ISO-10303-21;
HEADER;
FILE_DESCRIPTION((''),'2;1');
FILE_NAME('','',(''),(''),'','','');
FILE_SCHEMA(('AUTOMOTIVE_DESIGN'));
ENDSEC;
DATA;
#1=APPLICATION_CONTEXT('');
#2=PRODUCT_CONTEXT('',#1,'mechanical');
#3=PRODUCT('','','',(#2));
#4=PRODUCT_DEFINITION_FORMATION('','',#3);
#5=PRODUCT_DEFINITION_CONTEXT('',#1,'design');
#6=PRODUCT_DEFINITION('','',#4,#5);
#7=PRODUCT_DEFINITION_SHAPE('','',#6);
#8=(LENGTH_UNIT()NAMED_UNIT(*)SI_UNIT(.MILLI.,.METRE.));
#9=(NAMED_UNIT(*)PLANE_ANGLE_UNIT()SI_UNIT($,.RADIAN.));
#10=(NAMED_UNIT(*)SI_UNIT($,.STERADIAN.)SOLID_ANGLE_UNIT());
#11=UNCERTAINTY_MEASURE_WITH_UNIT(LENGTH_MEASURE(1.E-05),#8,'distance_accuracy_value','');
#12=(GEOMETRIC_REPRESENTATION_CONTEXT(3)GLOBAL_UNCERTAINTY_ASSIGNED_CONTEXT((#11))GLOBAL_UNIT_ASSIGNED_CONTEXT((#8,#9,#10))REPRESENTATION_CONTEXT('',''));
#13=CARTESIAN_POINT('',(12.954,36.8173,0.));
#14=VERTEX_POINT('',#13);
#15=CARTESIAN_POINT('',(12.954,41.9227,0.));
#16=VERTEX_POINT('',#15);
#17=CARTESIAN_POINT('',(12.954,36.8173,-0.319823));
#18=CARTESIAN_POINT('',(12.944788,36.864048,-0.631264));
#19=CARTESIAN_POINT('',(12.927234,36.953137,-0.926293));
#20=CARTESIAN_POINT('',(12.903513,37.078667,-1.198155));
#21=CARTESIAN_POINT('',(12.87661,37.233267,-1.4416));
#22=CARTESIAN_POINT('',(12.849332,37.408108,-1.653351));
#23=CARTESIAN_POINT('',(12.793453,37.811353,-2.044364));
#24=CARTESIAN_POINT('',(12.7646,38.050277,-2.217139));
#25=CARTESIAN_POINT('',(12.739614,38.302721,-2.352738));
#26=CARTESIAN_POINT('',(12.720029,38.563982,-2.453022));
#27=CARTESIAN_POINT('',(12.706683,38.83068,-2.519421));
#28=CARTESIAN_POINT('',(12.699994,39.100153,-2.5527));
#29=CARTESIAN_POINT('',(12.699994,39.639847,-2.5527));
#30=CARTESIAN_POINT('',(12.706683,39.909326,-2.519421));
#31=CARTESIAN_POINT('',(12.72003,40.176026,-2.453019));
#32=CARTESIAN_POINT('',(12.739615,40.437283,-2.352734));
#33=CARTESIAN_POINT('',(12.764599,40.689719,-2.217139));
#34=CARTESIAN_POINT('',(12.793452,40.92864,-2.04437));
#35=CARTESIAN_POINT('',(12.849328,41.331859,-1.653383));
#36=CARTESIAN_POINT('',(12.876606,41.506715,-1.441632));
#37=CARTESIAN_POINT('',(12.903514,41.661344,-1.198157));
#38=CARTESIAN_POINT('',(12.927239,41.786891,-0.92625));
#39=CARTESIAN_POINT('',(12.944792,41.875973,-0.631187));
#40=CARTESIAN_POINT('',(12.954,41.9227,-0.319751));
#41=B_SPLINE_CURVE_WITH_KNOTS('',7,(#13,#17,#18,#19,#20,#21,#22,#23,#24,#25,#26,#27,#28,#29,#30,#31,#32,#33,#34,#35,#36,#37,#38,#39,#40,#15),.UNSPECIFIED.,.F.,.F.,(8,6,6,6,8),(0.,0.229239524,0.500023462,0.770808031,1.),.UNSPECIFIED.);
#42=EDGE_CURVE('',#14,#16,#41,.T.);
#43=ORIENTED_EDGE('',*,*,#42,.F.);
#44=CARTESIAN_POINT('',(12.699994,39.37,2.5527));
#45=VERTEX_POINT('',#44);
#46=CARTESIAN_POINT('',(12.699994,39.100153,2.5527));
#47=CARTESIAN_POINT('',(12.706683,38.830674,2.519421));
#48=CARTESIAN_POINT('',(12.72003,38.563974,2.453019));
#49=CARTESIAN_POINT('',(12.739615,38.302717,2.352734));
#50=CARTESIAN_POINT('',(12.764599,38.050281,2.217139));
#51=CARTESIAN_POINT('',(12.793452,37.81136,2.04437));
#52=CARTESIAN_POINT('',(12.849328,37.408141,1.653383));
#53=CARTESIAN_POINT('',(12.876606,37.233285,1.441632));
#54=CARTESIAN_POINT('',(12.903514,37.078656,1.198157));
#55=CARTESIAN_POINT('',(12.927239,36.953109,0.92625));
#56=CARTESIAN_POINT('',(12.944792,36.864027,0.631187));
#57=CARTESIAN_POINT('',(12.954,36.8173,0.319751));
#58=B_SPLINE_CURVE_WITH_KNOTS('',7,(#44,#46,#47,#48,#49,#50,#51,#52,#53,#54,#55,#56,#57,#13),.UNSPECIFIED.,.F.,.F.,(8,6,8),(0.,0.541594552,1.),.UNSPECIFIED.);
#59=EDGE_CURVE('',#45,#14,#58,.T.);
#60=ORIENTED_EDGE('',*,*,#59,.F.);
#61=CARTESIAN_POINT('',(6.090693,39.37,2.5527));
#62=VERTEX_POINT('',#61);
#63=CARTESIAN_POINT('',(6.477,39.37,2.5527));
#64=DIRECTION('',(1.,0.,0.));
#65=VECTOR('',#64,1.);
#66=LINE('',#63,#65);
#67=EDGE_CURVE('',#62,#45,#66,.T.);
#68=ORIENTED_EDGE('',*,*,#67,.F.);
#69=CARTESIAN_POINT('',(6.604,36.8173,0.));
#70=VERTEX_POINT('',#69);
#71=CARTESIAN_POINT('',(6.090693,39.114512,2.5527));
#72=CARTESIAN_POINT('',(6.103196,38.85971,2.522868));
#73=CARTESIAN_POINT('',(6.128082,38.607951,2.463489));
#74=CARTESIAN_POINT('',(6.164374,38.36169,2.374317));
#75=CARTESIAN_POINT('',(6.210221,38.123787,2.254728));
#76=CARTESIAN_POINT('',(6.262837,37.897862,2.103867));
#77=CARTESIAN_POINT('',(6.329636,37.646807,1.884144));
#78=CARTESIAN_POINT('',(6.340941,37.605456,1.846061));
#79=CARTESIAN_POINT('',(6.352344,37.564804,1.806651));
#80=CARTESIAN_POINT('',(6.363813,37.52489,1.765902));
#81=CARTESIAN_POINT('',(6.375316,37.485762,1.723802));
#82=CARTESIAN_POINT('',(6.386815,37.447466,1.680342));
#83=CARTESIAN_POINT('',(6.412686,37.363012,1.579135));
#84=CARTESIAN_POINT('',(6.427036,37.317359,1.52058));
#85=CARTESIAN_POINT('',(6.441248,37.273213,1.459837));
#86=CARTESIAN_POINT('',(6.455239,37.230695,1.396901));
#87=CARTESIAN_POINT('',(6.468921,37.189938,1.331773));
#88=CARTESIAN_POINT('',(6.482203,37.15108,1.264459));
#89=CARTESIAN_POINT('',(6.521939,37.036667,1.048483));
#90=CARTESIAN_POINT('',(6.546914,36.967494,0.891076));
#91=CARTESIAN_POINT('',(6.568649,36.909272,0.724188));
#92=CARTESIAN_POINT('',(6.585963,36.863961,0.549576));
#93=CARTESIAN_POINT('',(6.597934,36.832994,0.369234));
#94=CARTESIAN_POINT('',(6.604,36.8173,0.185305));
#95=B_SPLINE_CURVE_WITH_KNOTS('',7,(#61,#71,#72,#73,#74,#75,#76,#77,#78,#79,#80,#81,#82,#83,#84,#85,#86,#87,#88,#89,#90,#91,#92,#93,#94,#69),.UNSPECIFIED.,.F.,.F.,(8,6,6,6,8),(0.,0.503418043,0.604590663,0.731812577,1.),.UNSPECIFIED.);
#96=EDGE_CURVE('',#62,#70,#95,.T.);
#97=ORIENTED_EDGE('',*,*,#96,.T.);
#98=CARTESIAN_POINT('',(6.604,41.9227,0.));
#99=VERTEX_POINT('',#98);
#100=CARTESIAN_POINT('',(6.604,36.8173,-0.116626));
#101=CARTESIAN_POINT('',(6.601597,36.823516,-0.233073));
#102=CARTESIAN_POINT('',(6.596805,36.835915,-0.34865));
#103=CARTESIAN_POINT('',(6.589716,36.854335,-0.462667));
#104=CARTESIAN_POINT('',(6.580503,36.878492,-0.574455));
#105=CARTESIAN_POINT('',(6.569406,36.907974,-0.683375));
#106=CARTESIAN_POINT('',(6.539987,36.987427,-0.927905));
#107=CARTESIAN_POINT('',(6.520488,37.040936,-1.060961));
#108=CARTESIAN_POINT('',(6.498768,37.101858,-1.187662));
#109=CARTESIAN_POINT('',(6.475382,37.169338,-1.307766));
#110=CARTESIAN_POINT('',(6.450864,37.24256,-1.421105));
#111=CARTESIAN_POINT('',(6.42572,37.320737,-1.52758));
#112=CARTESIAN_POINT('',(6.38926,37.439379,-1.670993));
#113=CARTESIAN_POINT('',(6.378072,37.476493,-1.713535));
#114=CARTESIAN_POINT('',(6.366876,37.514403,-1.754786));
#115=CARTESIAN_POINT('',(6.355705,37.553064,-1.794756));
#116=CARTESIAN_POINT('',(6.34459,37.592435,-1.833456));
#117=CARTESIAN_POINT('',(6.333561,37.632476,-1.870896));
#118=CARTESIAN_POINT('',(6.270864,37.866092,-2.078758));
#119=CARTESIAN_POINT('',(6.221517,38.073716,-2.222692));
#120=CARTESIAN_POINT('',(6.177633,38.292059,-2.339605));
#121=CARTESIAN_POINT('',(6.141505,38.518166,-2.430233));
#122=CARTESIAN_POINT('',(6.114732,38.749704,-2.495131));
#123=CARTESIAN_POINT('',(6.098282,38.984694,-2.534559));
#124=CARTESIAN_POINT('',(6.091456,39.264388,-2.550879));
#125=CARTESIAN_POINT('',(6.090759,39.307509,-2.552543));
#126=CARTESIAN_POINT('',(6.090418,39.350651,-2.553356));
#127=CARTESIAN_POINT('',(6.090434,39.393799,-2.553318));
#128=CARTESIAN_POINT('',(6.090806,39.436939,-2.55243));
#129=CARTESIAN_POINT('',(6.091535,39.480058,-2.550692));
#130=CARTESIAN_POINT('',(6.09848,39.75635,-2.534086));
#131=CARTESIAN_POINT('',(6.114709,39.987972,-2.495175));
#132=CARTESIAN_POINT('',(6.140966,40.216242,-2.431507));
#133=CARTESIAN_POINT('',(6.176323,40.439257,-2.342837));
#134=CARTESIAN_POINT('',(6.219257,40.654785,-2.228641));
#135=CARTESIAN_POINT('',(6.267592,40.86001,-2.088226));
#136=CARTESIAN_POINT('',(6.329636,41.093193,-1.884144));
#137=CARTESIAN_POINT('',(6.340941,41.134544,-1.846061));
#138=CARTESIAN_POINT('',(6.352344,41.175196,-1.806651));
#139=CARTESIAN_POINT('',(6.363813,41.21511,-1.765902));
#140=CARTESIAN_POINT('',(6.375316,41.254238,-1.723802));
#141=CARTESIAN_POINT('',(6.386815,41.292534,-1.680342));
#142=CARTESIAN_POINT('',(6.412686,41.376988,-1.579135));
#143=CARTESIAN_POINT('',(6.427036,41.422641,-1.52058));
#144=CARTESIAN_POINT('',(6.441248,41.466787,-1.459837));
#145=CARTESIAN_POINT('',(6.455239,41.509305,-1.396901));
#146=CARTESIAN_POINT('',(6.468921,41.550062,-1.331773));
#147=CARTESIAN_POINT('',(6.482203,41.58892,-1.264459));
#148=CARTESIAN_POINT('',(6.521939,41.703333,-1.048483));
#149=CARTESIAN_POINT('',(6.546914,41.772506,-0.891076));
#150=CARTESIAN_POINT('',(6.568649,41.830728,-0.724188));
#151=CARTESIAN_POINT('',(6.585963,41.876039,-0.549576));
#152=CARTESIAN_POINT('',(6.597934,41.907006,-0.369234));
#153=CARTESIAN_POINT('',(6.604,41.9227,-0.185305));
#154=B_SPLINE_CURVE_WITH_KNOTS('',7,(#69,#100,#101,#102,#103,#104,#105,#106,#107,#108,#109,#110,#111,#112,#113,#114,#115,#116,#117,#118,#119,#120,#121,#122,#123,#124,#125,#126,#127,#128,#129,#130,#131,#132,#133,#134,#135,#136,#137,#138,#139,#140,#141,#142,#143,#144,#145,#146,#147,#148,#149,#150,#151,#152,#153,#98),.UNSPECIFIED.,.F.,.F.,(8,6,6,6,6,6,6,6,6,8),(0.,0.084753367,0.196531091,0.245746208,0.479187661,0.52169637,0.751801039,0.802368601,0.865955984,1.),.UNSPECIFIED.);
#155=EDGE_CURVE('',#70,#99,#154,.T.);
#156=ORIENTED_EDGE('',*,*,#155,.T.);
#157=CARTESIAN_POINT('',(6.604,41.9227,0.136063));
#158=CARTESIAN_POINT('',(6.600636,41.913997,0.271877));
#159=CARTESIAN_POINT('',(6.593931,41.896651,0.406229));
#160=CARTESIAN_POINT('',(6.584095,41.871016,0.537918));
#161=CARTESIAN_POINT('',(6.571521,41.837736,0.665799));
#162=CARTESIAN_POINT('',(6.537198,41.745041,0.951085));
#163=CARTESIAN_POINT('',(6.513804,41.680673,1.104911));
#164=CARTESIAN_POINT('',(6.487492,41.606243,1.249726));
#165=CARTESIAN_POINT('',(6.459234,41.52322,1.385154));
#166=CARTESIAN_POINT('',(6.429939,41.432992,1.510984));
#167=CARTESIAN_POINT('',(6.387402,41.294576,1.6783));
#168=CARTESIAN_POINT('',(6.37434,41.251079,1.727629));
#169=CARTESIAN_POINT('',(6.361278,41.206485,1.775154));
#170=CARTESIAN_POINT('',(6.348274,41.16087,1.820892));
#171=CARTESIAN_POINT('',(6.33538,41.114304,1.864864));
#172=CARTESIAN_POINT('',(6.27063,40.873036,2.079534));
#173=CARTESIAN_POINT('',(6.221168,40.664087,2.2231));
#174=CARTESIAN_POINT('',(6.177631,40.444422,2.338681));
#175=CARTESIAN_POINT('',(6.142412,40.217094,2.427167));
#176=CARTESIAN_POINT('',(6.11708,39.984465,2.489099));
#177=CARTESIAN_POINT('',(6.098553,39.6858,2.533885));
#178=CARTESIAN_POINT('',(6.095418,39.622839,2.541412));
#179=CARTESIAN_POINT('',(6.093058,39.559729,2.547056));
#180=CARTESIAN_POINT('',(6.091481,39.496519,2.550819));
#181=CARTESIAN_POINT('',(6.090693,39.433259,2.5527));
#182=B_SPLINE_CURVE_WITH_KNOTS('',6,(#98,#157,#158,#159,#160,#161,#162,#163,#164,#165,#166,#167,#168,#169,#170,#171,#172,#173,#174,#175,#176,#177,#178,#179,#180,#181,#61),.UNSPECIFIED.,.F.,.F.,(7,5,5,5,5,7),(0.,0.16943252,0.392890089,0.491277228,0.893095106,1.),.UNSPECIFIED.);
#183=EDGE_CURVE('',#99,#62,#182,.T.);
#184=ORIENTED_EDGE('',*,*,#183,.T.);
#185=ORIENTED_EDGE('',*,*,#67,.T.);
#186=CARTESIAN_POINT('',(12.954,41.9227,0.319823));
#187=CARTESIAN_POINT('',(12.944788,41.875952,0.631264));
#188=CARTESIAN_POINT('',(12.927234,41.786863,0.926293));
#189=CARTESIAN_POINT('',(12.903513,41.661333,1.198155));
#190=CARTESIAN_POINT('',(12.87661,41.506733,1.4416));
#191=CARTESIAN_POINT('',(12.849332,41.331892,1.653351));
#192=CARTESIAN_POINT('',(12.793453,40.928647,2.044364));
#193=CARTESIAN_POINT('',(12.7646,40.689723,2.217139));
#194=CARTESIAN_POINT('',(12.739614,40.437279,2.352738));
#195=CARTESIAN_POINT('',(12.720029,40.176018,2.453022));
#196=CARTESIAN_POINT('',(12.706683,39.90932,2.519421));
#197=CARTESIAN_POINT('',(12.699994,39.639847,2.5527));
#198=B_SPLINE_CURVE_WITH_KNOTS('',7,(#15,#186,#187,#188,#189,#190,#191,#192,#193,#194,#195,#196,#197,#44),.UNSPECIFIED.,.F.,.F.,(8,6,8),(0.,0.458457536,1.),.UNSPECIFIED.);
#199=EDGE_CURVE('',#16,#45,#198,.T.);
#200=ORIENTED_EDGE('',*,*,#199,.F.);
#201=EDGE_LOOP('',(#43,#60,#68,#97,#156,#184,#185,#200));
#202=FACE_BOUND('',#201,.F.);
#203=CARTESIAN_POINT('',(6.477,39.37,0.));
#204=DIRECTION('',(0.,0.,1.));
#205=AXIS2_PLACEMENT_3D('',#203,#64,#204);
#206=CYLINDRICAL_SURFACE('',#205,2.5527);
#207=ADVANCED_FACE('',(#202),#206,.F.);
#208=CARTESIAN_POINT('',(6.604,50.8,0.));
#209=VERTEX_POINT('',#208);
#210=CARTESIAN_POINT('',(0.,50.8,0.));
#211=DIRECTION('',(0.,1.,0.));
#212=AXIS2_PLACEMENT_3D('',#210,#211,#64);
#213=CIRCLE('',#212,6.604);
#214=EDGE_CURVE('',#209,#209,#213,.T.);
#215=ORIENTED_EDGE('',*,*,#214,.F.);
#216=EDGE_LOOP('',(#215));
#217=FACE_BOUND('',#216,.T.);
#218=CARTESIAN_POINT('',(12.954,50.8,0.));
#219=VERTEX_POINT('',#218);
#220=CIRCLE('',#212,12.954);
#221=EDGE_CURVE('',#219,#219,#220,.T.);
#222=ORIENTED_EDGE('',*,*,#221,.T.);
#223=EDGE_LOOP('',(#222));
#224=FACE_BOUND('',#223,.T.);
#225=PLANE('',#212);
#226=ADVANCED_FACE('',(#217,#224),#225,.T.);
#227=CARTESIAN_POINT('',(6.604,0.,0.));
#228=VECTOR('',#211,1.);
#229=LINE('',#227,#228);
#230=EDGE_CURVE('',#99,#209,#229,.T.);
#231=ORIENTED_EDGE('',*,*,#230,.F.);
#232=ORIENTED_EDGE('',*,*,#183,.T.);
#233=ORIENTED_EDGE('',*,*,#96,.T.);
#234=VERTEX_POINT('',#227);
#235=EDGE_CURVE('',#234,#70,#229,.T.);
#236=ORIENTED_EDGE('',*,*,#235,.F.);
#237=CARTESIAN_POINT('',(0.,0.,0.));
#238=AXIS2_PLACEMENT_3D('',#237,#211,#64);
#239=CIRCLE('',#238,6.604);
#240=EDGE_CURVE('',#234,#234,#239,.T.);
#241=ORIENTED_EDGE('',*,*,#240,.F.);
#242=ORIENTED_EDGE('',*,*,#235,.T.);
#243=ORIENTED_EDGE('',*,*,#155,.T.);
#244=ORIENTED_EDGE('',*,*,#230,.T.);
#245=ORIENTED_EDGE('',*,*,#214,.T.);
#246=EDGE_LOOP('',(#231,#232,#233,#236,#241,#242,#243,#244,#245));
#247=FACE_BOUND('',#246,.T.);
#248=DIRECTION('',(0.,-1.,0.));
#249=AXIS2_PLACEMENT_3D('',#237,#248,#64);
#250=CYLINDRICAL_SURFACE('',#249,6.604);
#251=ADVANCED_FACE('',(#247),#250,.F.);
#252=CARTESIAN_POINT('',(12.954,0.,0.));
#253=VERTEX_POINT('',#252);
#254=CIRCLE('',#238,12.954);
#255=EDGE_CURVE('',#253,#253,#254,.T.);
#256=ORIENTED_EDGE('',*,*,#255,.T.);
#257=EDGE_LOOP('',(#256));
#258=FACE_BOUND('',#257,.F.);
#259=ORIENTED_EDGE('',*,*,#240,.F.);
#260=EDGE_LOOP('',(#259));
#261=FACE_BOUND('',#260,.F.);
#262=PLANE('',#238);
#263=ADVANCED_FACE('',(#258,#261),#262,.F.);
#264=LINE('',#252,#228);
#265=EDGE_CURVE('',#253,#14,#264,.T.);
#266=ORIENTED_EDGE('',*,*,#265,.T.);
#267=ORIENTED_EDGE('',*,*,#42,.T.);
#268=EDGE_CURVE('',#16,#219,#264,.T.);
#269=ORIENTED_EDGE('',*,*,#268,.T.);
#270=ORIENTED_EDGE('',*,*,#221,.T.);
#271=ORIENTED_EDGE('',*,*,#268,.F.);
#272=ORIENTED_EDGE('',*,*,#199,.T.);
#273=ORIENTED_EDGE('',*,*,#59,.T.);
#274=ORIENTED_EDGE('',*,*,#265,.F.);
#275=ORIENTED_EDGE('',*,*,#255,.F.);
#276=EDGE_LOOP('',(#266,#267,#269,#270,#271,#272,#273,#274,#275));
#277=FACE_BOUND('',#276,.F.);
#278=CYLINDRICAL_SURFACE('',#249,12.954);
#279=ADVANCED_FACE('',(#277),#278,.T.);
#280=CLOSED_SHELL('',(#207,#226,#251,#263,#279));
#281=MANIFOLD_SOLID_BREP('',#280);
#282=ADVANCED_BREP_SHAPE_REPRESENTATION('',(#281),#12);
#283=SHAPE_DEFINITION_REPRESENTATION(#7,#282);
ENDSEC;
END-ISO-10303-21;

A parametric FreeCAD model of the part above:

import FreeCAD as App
import Part
import Sketcher
Q = App.Units.Quantity

doc = App.newDocument("Part")
body = doc.addObject("PartDesign::Body", "Body")

sketch1 = body.newObject("Sketcher::SketchObject", "Sketch")
sketch1.AttachmentSupport = (doc.getObject("XZ_Plane"), [""])
sketch1.MapMode = "FlatFace"
sketch1.addGeometry([
    Part.Circle(App.Vector(0, 0, 0), App.Vector(0, 0, 1), 13),
    Part.Circle(App.Vector(0, 0, 0), App.Vector(0, 0, 1), 7),
], False)
sketch1.addConstraint([
    Sketcher.Constraint("Coincident", 0, 3, -1, 1),
    Sketcher.Constraint("Coincident", 1, 3, -1, 1),
    Sketcher.Constraint("Diameter", 0, Q("1.02 in")),
    Sketcher.Constraint("Diameter", 1, Q("0.52 in")),
])
pad1 = body.newObject("PartDesign::Pad", "Pad")
pad1.Profile = sketch1
pad1.Length = Q("2 in")
pad1.Reversed = True

sketch2 = body.newObject("Sketcher::SketchObject", "Sketch001")
sketch2.AttachmentSupport = (doc.getObject("XZ_Plane"), [""])
sketch2.MapMode = "FlatFace"
sketch2.AttachmentOffset = App.Placement(App.Vector(0, 0, -1.55 * 25.4), App.Rotation())
sketch2.addGeometry([
    Part.LineSegment(App.Vector(13, 0, 0), App.Vector(0, 0, 0)),
    Part.LineSegment(App.Vector(0, 0, 0), App.Vector(0, 2.6, 0)),
    Part.LineSegment(App.Vector(0, 2.6, 0), App.Vector(13, 2.6, 0)),
    Part.LineSegment(App.Vector(13, 2.6, 0), App.Vector(13, 0, 0)),
], False)
sketch2.addConstraint([
    Sketcher.Constraint("Coincident", 0, 2, 1, 1),
    Sketcher.Constraint("Coincident", 1, 2, 2, 1),
    Sketcher.Constraint("Coincident", 2, 2, 3, 1),
    Sketcher.Constraint("Coincident", 3, 2, 0, 1),
    Sketcher.Constraint("Horizontal", 0),
    Sketcher.Constraint("Vertical", 1),
    Sketcher.Constraint("Horizontal", 2),
    Sketcher.Constraint("Vertical", 3),
    Sketcher.Constraint("Coincident", 0, 2, -1, 1),
    Sketcher.Constraint("DistanceX", 0, 2, 0, 1, Q("0.51 in")),
    Sketcher.Constraint("DistanceY", 1, 1, 1, 2, Q("0.1005 in")),
])
groove = body.newObject("PartDesign::Groove", "Groove")
groove.Profile = sketch2
groove.ReferenceAxis = (sketch2, ["H_Axis"])
groove.Angle = 360

doc.recompute()
